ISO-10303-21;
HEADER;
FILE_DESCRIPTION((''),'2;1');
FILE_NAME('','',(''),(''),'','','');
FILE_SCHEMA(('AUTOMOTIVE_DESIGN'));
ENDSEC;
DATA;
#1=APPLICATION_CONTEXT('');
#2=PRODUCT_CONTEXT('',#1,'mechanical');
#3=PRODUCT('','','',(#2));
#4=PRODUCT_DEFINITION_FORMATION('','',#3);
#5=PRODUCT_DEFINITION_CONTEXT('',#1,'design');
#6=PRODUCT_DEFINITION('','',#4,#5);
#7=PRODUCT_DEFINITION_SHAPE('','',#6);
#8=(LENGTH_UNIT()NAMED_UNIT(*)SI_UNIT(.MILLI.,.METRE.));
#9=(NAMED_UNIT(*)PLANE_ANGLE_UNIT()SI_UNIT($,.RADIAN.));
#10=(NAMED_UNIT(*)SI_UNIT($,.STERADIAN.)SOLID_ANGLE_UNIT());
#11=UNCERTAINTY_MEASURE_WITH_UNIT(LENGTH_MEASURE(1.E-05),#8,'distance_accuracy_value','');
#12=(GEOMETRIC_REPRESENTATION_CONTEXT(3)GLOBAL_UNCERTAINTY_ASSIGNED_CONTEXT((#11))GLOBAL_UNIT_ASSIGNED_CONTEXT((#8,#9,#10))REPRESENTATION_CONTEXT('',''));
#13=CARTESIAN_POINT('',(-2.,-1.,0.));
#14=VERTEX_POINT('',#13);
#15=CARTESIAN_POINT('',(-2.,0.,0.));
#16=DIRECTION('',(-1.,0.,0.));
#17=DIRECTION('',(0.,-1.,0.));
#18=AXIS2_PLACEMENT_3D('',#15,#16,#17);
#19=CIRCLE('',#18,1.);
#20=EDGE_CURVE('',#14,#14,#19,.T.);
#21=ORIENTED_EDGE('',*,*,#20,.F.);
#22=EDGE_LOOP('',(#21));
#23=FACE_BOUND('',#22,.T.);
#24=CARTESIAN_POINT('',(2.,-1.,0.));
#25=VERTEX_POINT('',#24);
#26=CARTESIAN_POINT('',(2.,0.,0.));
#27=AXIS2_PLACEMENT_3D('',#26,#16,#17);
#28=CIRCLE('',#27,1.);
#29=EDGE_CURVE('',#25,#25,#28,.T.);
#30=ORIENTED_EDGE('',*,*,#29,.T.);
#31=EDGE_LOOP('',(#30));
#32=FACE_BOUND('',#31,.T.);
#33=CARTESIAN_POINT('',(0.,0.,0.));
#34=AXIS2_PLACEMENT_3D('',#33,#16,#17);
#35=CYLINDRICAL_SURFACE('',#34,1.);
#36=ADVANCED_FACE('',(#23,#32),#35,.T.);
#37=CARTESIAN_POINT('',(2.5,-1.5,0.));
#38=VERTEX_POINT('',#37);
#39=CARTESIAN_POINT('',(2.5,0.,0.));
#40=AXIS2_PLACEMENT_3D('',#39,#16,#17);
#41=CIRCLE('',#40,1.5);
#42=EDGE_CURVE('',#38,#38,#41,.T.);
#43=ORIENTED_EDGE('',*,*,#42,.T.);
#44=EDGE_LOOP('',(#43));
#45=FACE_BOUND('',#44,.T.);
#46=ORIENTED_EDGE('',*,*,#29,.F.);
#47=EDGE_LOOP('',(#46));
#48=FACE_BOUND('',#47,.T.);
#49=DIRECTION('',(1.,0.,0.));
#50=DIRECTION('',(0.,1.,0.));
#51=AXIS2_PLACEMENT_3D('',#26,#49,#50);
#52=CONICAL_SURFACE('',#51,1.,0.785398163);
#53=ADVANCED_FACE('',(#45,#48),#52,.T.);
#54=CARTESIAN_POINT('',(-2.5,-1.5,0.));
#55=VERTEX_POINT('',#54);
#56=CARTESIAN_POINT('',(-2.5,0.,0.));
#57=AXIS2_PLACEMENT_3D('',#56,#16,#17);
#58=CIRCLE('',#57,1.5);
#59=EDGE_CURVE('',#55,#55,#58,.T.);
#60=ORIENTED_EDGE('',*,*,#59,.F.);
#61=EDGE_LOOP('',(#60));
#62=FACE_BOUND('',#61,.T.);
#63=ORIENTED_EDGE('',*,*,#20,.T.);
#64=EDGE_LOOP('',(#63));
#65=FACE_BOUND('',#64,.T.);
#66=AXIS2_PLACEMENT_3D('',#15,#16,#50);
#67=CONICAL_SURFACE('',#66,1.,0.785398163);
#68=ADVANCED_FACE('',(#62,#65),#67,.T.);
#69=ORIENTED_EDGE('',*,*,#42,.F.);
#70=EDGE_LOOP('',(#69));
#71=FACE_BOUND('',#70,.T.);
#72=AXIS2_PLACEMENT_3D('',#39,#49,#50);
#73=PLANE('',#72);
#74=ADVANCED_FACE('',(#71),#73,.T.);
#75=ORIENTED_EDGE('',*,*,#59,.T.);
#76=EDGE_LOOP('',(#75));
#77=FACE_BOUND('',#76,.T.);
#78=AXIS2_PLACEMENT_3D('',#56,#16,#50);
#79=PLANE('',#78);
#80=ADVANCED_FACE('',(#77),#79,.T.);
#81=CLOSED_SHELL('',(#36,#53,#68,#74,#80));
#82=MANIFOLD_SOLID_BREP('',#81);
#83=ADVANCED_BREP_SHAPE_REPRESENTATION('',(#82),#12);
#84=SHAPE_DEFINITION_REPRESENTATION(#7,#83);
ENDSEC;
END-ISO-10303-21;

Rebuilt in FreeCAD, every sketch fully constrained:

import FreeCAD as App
import Part
import Sketcher
from FreeCAD import Vector
Q = App.Units.Quantity


def add_polygon(sketch, points):
    """Adds a closed chain of lines whose ends are joined by coincident constraints."""
    first, n = sketch.GeometryCount, len(points)
    for a, b in zip(points, points[1:] + points[:1]):
        sketch.addGeometry(Part.LineSegment(App.Vector(*a, 0), App.Vector(*b, 0)), False)
    for i in range(n):
        sketch.addConstraint(Sketcher.Constraint("Coincident", first + i, 2, first + (i + 1) % n, 1))

doc = App.newDocument("Part")
body = doc.addObject("PartDesign::Body", "Body")

# Sketch on XY plane
sketch1 = doc.addObject("Sketcher::SketchObject", "Sketch")
body.addObject(sketch1)
sketch1.AttachmentSupport = (doc.XY_Plane, [""])
sketch1.MapMode = "FlatFace"
add_polygon(sketch1, [(0, 1), (0, 0), (2.5, 0), (2.5, 1.5), (2, 1)])  # lines 0-4
sketch1.addConstraint(Sketcher.Constraint("Vertical", 0))
sketch1.addConstraint(Sketcher.Constraint("Horizontal", 1))
sketch1.addConstraint(Sketcher.Constraint("Vertical", 2))
sketch1.addConstraint(Sketcher.Constraint("Horizontal", 4))
sketch1.addConstraint(Sketcher.Constraint("Coincident", 0, 2, -1, 1))
sketch1.addConstraint(Sketcher.Constraint("DistanceX", 4, 2, 4, 1, Q("2 mm")))
sketch1.addConstraint(Sketcher.Constraint("DistanceY", 0, 2, 0, 1, Q("1 mm")))
sketch1.addConstraint(Sketcher.Constraint("Angle", 3, Q("-135 deg")))
sketch1.addConstraint(Sketcher.Constraint("DistanceX", 1, 1, 1, 2, Q("2.5 mm")))
revolution = doc.addObject("PartDesign::Revolution", "Revolution")
body.addObject(revolution)
revolution.Profile = sketch1
revolution.ReferenceAxis = (sketch1, ["H_Axis"])
revolution.Angle = 360
doc.recompute()

mirrored = doc.addObject("PartDesign::Mirrored", "Mirrored")
body.addObject(mirrored)
mirrored.Originals = [revolution]
mirrored.MirrorPlane = (doc.YZ_Plane, [""])
body.Tip = mirrored

doc.recompute()
